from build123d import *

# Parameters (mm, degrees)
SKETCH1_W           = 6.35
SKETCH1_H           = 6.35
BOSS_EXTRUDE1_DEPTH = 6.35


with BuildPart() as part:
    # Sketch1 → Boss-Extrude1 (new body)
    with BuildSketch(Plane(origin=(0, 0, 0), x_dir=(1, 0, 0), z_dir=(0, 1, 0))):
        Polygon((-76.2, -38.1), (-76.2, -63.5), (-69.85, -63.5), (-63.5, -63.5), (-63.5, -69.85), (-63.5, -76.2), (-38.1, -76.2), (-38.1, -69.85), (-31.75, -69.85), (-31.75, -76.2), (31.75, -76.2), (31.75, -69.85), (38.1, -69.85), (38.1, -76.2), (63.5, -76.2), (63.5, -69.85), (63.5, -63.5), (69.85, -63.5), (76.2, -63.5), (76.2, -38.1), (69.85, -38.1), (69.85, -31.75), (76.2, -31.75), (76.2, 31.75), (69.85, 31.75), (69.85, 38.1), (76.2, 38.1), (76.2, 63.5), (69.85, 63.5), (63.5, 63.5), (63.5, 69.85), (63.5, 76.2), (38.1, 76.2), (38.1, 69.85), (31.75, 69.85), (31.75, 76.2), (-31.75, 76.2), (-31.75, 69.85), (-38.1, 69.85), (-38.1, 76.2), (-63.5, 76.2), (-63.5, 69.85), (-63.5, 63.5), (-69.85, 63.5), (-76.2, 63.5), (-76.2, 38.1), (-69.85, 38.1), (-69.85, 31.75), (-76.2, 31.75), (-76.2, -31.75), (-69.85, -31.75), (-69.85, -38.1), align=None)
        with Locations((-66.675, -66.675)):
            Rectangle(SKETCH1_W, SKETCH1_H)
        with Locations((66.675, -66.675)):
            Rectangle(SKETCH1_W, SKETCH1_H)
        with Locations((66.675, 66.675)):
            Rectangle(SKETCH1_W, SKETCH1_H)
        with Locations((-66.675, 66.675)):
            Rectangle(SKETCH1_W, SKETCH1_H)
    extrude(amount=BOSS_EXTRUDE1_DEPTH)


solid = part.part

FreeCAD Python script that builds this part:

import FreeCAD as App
import Part
import Sketcher

V = App.Vector
Q = App.Units.Quantity


def add_polygon(sketch, points):
    """Adds a closed chain of lines whose ends are joined by coincident constraints."""
    first, n = sketch.GeometryCount, len(points)
    for a, b in zip(points, points[1:] + points[:1]):
        sketch.addGeometry(Part.LineSegment(App.Vector(*a, 0), App.Vector(*b, 0)), False)
    for i in range(n):
        sketch.addConstraint(Sketcher.Constraint("Coincident", first + i, 2, first + (i + 1) % n, 1))

doc = App.newDocument("Part")
params = doc.addObject("Spreadsheet::Sheet", "Params")
for row, (alias, value) in enumerate([
    ("sketch1_width", "1 in"),
    ("sketch1_width2", "2.5 in"),
    ("pad1_length", "0.25 in"),
], start=1):
    params.set(f"A{row}", alias)
    params.set(f"B{row}", "=" + value)
    params.setAlias(f"B{row}", alias)

body = doc.addObject("PartDesign::Body", "Body")

# Sketch on XZ plane
sketch1 = body.newObject("Sketcher::SketchObject", "Sketch")
sketch1.AttachmentSupport = (doc.getObject("XZ_Plane"), [""])
sketch1.MapMode = "FlatFace"
add_polygon(sketch1, [(-76.2, 38.1), (-76.2, 63.5), (-69.85, 63.5), (-69.85, 69.85), (-63.5, 69.85), (-63.5, 76.2), (-38.1, 76.2), (-38.1, 69.85), (-31.75, 69.85), (-31.75, 76.2), (31.75, 76.2), (31.75, 69.85), (38.1, 69.85), (38.1, 76.2), (63.5, 76.2), (63.5, 69.85), (69.85, 69.85), (69.85, 63.5), (76.2, 63.5), (76.2, 38.1), (69.85, 38.1), (69.85, 31.75), (76.2, 31.75), (76.2, -31.75), (69.85, -31.75), (69.85, -38.1), (76.2, -38.1), (76.2, -63.5), (69.85, -63.5), (69.85, -69.85), (63.5, -69.85), (63.5, -76.2), (38.1, -76.2), (38.1, -69.85), (31.75, -69.85), (31.75, -76.2), (-31.75, -76.2), (-31.75, -69.85), (-38.1, -69.85), (-38.1, -76.2), (-63.5, -76.2), (-63.5, -69.85), (-69.85, -69.85), (-69.85, -63.5), (-76.2, -63.5), (-76.2, -38.1), (-69.85, -38.1), (-69.85, -31.75), (-76.2, -31.75), (-76.2, 31.75), (-69.85, 31.75), (-69.85, 38.1)])  # lines 0-51
sketch1.addConstraint([
    Sketcher.Constraint("Vertical", 0),
    Sketcher.Constraint("Horizontal", 1),
    Sketcher.Constraint("Vertical", 2),
    Sketcher.Constraint("Horizontal", 3),
    Sketcher.Constraint("Vertical", 4),
    Sketcher.Constraint("Horizontal", 5),
    Sketcher.Constraint("Vertical", 6),
    Sketcher.Constraint("Horizontal", 7),
    Sketcher.Constraint("Vertical", 8),
    Sketcher.Constraint("Horizontal", 9),
    Sketcher.Constraint("Vertical", 10),
    Sketcher.Constraint("Horizontal", 11),
    Sketcher.Constraint("Vertical", 12),
    Sketcher.Constraint("Horizontal", 13),
    Sketcher.Constraint("Vertical", 14),
    Sketcher.Constraint("Horizontal", 15),
    Sketcher.Constraint("Vertical", 16),
    Sketcher.Constraint("Horizontal", 17),
    Sketcher.Constraint("Vertical", 18),
    Sketcher.Constraint("Horizontal", 19),
    Sketcher.Constraint("Vertical", 20),
    Sketcher.Constraint("Horizontal", 21),
    Sketcher.Constraint("Vertical", 22),
    Sketcher.Constraint("Horizontal", 23),
    Sketcher.Constraint("Vertical", 24),
    Sketcher.Constraint("Horizontal", 25),
    Sketcher.Constraint("Vertical", 26),
    Sketcher.Constraint("Horizontal", 27),
    Sketcher.Constraint("Vertical", 28),
    Sketcher.Constraint("Horizontal", 29),
    Sketcher.Constraint("Vertical", 30),
    Sketcher.Constraint("Horizontal", 31),
    Sketcher.Constraint("Vertical", 32),
    Sketcher.Constraint("Horizontal", 33),
    Sketcher.Constraint("Vertical", 34),
    Sketcher.Constraint("Horizontal", 35),
    Sketcher.Constraint("Vertical", 36),
    Sketcher.Constraint("Horizontal", 37),
    Sketcher.Constraint("Vertical", 38),
    Sketcher.Constraint("Horizontal", 39),
    Sketcher.Constraint("Vertical", 40),
    Sketcher.Constraint("Horizontal", 41),
    Sketcher.Constraint("Vertical", 42),
    Sketcher.Constraint("Horizontal", 43),
    Sketcher.Constraint("Vertical", 44),
    Sketcher.Constraint("Horizontal", 45),
    Sketcher.Constraint("Vertical", 46),
    Sketcher.Constraint("Horizontal", 47),
    Sketcher.Constraint("Vertical", 48),
    Sketcher.Constraint("Horizontal", 49),
    Sketcher.Constraint("Vertical", 50),
    Sketcher.Constraint("Horizontal", 51),
    Sketcher.Constraint("Symmetric", 0, 2, 26, 2, -1, 1),
    Sketcher.Constraint("Symmetric", 2, 2, 28, 2, -1, 1),
    Sketcher.Constraint("Symmetric", 4, 2, 30, 2, -1, 1),
    Sketcher.Constraint("Symmetric", 6, 2, 32, 2, -1, 1),
    Sketcher.Constraint("Symmetric", 8, 2, 34, 2, -1, 1),
    Sketcher.Constraint("Symmetric", 10, 2, 36, 2, -1, 1),
    Sketcher.Constraint("Symmetric", 12, 2, 38, 2, -1, 1),
    Sketcher.Constraint("Symmetric", 14, 2, 40, 2, -1, 1),
    Sketcher.Constraint("Symmetric", 16, 2, 42, 2, -1, 1),
    Sketcher.Constraint("Symmetric", 18, 2, 44, 2, -1, 1),
    Sketcher.Constraint("Symmetric", 20, 2, 46, 2, -1, 1),
    Sketcher.Constraint("Symmetric", 22, 2, 48, 2, -1, 1),
    Sketcher.Constraint("Symmetric", 24, 2, 50, 2, -1, 1),
    Sketcher.Constraint("Symmetric", 7, 2, 10, 2, -2),
    Sketcher.Constraint("Symmetric", 5, 2, 12, 2, -2),
    Sketcher.Constraint("Symmetric", 3, 2, 14, 2, -2),
    Sketcher.Constraint("Symmetric", 1, 2, 16, 2, -2),
    Sketcher.Constraint("Symmetric", 25, 2, 44, 2, -2),
    Sketcher.Constraint("Symmetric", 23, 2, 46, 2, -2),
    Sketcher.Constraint("Horizontal", 3, 2, 6, 2),
    Sketcher.Constraint("Horizontal", 5, 2, 8, 2),
    Sketcher.Constraint("Vertical", 16, 2, 19, 2),
    Sketcher.Constraint("Vertical", 18, 2, 21, 2),
    Sketcher.Constraint("Equal", 1, 3),
    Sketcher.Constraint("Equal", 3, 7),
    Sketcher.Constraint("Equal", 39, 0),
    Sketcher.Constraint("Equal", 51, 2),
    Sketcher.Constraint("Equal", 2, 4),
    Sketcher.Constraint("Equal", 16, 20),
    Sketcher.Constraint("Equal", 35, 22),
    Sketcher.Constraint("DistanceX", 5, 1, 5, 2, Q("1 in")),
    Sketcher.Constraint("DistanceX", 9, 1, 9, 2, Q("2.5 in")),
    Sketcher.Constraint("DistanceX", 0, 2, -1, 1, Q("3 in")),
])
sketch1.setExpression("Constraints[134]", "Params.sketch1_width")
sketch1.setExpression("Constraints[135]", "Params.sketch1_width2")
pad1 = body.newObject("PartDesign::Pad", "Pad")
pad1.Profile = sketch1
pad1.setExpression("Length", "Params.pad1_length")
pad1.Reversed = True

doc.recompute()
